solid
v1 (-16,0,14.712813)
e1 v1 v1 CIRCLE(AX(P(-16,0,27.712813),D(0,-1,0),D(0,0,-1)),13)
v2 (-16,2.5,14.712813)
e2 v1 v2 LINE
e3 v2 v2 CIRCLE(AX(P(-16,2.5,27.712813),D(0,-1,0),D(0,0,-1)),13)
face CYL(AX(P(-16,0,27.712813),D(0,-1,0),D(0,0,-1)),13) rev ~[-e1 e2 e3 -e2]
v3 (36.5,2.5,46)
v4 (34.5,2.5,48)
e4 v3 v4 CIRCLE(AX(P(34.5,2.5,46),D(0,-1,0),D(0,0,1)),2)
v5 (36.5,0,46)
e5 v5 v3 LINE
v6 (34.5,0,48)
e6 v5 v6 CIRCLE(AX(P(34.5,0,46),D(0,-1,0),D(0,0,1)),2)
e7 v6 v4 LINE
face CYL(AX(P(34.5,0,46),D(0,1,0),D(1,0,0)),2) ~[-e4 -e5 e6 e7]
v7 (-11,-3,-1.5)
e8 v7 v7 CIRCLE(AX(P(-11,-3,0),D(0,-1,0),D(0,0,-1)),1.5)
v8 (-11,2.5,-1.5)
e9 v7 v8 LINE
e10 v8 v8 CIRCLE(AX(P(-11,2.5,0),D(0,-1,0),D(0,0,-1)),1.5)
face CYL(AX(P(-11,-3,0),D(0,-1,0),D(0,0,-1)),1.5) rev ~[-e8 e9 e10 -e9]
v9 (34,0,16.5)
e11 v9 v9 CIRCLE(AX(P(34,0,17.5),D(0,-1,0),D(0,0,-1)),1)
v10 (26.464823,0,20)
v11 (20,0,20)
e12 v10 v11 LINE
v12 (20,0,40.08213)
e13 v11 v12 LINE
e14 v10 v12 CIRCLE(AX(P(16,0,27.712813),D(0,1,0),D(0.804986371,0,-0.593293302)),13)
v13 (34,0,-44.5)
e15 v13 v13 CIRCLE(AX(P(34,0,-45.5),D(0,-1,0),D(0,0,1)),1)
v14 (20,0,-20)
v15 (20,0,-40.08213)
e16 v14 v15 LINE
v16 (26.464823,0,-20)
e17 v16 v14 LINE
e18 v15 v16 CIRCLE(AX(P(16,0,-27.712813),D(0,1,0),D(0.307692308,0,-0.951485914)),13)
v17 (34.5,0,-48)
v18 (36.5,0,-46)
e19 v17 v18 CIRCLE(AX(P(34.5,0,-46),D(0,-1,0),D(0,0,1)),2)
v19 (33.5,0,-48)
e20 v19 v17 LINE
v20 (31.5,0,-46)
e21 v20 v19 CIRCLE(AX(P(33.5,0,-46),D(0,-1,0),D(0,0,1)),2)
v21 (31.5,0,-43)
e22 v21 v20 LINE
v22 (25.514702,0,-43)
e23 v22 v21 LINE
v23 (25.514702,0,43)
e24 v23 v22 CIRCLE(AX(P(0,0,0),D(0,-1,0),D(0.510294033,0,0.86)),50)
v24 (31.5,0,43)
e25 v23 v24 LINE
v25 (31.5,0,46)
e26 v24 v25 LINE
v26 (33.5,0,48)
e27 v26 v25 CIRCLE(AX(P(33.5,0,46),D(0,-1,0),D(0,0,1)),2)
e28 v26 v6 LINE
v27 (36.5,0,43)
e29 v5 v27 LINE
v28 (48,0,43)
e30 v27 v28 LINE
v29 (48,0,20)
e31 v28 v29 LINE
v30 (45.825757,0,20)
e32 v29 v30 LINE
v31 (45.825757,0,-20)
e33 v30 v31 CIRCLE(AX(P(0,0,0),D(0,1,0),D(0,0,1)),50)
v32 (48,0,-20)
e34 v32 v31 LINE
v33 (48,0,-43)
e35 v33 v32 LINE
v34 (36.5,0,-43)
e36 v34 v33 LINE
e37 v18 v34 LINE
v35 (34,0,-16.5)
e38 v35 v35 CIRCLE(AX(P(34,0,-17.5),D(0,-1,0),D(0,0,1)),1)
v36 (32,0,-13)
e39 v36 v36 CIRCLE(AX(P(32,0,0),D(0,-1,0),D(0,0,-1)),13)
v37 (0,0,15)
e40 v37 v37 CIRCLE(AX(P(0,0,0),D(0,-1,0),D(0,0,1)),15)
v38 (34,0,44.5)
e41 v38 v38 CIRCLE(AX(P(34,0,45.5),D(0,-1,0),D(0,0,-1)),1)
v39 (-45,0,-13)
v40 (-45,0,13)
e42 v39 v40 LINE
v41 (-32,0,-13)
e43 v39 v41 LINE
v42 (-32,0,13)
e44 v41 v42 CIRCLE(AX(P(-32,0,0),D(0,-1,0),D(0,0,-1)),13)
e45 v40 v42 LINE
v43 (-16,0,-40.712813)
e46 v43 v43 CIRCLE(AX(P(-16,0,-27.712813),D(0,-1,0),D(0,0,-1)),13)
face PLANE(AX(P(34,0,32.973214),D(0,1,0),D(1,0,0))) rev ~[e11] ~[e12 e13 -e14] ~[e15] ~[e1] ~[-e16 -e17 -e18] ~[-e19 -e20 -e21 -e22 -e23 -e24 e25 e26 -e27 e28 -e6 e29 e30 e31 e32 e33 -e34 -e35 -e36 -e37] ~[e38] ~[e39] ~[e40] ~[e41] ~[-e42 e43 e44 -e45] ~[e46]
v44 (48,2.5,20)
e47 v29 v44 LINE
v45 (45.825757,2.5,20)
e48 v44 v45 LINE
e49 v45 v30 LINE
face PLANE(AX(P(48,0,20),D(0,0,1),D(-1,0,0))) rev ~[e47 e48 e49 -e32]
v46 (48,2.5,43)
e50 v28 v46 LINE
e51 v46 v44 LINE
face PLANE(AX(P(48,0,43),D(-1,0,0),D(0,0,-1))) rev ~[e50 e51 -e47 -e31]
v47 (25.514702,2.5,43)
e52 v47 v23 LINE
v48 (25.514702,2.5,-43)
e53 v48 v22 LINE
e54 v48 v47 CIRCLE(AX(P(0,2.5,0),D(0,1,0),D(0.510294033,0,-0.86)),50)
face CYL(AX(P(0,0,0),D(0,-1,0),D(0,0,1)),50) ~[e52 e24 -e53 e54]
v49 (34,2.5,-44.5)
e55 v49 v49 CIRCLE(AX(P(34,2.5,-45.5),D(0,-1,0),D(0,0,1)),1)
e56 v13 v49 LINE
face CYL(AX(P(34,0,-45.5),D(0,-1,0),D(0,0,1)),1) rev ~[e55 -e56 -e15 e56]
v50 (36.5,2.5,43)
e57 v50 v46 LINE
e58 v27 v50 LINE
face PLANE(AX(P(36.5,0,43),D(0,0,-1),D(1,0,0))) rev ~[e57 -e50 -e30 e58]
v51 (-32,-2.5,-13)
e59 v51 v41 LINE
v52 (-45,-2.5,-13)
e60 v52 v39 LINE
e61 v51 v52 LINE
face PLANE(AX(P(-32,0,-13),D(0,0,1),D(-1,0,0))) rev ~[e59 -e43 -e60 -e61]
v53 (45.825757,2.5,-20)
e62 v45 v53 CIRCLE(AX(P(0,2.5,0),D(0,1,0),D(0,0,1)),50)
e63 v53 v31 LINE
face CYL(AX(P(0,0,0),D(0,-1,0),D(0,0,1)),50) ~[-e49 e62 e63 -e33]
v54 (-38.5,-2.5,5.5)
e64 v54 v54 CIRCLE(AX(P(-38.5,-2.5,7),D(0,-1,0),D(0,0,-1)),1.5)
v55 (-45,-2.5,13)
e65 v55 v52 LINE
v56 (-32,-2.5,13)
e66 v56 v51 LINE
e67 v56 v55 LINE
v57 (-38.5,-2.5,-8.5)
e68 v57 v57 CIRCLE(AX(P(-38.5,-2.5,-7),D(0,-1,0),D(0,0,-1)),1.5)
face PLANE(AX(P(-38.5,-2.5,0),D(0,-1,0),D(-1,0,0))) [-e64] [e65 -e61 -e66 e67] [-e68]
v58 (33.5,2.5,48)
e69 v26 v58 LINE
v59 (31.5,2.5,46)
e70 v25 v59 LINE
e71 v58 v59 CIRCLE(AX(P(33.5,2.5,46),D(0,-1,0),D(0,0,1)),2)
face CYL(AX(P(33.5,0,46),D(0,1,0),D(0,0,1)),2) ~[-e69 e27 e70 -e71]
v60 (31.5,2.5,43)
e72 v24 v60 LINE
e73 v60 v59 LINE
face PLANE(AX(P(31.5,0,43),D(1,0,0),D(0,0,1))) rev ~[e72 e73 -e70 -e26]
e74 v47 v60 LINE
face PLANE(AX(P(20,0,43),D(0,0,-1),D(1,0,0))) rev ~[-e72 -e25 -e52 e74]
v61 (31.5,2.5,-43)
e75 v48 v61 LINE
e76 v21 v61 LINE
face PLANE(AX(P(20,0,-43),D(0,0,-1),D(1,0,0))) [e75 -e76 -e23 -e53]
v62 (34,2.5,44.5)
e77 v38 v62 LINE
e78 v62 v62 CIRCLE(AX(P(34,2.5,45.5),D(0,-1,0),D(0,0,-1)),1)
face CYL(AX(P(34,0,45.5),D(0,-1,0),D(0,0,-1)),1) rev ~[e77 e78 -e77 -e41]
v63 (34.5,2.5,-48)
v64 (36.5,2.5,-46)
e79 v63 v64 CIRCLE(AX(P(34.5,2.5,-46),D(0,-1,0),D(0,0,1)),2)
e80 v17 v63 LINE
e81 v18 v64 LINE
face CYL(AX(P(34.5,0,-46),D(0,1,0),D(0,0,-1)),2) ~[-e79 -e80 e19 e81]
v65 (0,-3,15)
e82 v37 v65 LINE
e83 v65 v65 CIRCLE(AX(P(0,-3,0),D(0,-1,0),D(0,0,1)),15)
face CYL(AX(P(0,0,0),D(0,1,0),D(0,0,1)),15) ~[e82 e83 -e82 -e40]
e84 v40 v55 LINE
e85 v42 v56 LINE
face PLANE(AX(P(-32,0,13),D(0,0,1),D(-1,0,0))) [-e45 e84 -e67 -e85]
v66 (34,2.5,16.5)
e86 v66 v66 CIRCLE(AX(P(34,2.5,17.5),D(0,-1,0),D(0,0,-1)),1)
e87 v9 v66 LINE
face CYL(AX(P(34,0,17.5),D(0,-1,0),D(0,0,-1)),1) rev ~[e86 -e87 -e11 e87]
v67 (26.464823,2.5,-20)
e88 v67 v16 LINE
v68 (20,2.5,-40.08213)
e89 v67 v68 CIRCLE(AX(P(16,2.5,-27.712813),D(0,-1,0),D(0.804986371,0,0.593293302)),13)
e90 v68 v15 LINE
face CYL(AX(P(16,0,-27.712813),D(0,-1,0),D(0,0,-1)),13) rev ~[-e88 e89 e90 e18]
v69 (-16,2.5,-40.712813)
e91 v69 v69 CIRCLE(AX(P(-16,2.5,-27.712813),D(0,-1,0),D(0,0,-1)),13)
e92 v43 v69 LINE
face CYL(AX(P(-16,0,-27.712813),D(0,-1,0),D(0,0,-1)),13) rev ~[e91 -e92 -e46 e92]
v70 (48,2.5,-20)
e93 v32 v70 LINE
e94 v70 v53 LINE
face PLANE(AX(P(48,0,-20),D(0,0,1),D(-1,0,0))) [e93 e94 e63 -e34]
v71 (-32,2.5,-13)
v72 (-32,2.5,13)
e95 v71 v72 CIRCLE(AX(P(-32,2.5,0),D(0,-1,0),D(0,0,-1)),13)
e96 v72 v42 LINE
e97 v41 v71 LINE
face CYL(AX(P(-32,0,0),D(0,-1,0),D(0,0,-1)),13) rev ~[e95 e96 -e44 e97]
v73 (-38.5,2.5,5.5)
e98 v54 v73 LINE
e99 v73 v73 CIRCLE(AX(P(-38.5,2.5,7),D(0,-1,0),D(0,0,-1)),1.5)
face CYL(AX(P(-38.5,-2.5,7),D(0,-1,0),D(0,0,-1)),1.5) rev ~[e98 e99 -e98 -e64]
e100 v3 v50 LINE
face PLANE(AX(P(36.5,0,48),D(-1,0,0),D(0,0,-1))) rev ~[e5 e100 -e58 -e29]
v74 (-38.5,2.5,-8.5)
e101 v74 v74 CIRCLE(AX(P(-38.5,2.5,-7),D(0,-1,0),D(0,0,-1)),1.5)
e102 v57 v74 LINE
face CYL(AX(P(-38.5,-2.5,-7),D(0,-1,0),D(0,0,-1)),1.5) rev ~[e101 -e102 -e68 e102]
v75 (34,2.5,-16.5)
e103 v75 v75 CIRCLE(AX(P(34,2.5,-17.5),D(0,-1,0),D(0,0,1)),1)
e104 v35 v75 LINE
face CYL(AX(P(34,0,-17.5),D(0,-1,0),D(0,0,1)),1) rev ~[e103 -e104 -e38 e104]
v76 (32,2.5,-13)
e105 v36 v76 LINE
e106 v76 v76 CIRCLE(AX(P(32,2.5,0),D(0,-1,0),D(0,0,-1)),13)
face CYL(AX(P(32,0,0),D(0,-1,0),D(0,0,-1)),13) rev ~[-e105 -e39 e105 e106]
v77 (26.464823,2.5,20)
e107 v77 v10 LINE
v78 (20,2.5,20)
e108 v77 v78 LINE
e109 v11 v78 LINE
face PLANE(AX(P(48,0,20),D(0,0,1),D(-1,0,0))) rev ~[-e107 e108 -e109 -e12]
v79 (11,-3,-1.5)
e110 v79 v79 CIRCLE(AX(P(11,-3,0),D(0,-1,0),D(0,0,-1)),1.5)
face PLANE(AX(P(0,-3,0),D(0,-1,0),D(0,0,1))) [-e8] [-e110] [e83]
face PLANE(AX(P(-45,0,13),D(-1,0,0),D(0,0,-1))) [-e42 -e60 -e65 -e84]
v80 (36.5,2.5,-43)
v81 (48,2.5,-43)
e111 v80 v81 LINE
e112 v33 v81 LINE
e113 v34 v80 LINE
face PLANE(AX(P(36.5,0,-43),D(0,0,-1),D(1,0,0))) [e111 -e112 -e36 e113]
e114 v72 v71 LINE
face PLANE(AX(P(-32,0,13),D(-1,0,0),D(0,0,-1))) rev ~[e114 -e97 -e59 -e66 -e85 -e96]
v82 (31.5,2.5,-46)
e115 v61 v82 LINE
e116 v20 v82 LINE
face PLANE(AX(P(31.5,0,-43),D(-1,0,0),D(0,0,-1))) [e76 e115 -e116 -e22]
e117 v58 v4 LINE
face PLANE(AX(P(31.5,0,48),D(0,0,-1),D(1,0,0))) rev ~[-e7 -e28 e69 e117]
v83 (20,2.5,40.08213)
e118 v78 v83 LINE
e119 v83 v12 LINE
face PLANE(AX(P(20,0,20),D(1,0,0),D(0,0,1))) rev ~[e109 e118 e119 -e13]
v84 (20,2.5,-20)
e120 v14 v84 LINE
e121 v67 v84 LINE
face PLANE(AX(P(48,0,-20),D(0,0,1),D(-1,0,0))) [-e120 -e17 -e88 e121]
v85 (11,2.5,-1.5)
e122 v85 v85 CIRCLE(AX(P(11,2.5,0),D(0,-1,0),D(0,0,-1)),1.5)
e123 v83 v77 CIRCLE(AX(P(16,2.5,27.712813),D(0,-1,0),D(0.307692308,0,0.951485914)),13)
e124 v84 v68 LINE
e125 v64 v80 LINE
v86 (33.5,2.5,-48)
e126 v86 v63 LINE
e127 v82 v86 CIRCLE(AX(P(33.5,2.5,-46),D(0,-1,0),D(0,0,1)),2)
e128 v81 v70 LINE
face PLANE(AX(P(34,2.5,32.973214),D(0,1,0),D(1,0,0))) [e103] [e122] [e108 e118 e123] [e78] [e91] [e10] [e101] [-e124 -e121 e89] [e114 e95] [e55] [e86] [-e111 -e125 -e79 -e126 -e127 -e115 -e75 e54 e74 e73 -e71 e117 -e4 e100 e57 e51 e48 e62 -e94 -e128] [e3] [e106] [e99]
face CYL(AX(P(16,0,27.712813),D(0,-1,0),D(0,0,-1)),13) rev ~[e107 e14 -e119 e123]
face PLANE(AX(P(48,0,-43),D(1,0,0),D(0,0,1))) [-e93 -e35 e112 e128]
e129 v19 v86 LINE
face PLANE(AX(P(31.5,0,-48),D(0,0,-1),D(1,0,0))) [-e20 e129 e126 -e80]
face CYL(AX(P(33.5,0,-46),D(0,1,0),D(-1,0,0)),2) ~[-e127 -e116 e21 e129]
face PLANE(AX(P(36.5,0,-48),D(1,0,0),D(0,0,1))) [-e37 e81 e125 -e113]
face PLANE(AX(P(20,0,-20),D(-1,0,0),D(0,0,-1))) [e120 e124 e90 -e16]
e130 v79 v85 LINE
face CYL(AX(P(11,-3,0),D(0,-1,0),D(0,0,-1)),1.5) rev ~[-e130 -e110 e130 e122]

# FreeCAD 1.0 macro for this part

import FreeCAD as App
import Part
import Sketcher
Q = App.Units.Quantity


def edges_at(feature, points):
    """Names of the edges that pass closest to the given points."""
    edges = feature.Shape.Edges
    near = lambda p: min(range(len(edges)), key=lambda i: edges[i].distToShape(Part.Vertex(*p))[0])
    return sorted({f"Edge{near(p) + 1}" for p in points})


def add_polygon(sketch, points):
    """Adds a closed chain of lines whose ends are joined by coincident constraints."""
    first, n = sketch.GeometryCount, len(points)
    for a, b in zip(points, points[1:] + points[:1]):
        sketch.addGeometry(Part.LineSegment(App.Vector(*a, 0), App.Vector(*b, 0)), False)
    for i in range(n):
        sketch.addConstraint(Sketcher.Constraint("Coincident", first + i, 2, first + (i + 1) % n, 1))

doc = App.newDocument("Part")
body = doc.addObject("PartDesign::Body", "Body")

sketch1 = doc.addObject("Sketcher::SketchObject", "Sketch")
body.addObject(sketch1)
sketch1.AttachmentSupport = (doc.XZ_Plane, [""])
sketch1.MapMode = "FlatFace"
sketch1.addGeometry(Part.Circle(App.Vector(0, 0, 0), App.Vector(0, 0, 1), 50), False)
sketch1.addConstraint([
    Sketcher.Constraint("Coincident", 0, 3, -1, 1),
    Sketcher.Constraint("Diameter", 0, Q("100 mm")),
])
pad1 = doc.addObject("PartDesign::Pad", "Pad")
body.addObject(pad1)
pad1.Profile = sketch1
pad1.Length = 2.5
pad1.Reversed = True

sketch2 = doc.addObject("Sketcher::SketchObject", "Sketch001")
body.addObject(sketch2)
sketch2.AttachmentSupport = (doc.XZ_Plane, [""])
sketch2.MapMode = "FlatFace"
sketch2.addGeometry(Part.Circle(App.Vector(0, 0, 0), App.Vector(0, 0, 1), 15), False)
sketch2.addConstraint([
    Sketcher.Constraint("Coincident", 0, 3, -1, 1),
    Sketcher.Constraint("Diameter", 0, Q("30 mm")),
])
pad2 = doc.addObject("PartDesign::Pad", "Pad001")
body.addObject(pad2)
pad2.Profile = sketch2
pad2.Length = 3

sketch3 = doc.addObject("Sketcher::SketchObject", "Sketch002")
body.addObject(sketch3)
sketch3.AttachmentSupport = (doc.XZ_Plane, [""])
sketch3.MapMode = "FlatFace"
sketch3.AttachmentOffset = App.Placement(App.Vector(0, 0, 3), App.Rotation())
sketch3.addGeometry([
    Part.Circle(App.Vector(-11, 0, 0), App.Vector(0, 0, 1), 1.5),
    Part.Circle(App.Vector(11, 0, 0), App.Vector(0, 0, 1), 1.5),
], False)
sketch3.addConstraint([
    Sketcher.Constraint("Equal", 0, 1),
    Sketcher.Constraint("Symmetric", 0, 3, 1, 3, -1, 1),
    Sketcher.Constraint("PointOnObject", 0, 3, -1),
    Sketcher.Constraint("Diameter", 0, Q("3 mm")),
    Sketcher.Constraint("DistanceX", 0, 3, -1, 1, Q("11 mm")),
])
pocket1 = doc.addObject("PartDesign::Pocket", "Pocket")
body.addObject(pocket1)
pocket1.Profile = sketch3
pocket1.Type = "ThroughAll"

sketch4 = doc.addObject("Sketcher::SketchObject", "Sketch003")
body.addObject(sketch4)
sketch4.AttachmentSupport = (doc.XZ_Plane, [""])
sketch4.MapMode = "FlatFace"
sketch4.addGeometry([
    Part.Circle(App.Vector(-32, 0, 0), App.Vector(0, 0, 1), 13),
    Part.Circle(App.Vector(-16, 28, 0), App.Vector(0, 0, 1), 13),
    Part.Circle(App.Vector(16, 28, 0), App.Vector(0, 0, 1), 13),
    Part.Circle(App.Vector(32, 0, 0), App.Vector(0, 0, 1), 13),
    Part.Circle(App.Vector(16, -28, 0), App.Vector(0, 0, 1), 13),
    Part.Circle(App.Vector(-16, -28, 0), App.Vector(0, 0, 1), 13),
], False)
sketch4.addConstraint([
    Sketcher.Constraint("Equal", 0, 1),
    Sketcher.Constraint("Equal", 1, 2),
    Sketcher.Constraint("Equal", 2, 3),
    Sketcher.Constraint("Equal", 3, 4),
    Sketcher.Constraint("Equal", 4, 5),
    Sketcher.Constraint("Symmetric", 0, 3, 3, 3, -1, 1),
    Sketcher.Constraint("Symmetric", 1, 3, 4, 3, -1, 1),
    Sketcher.Constraint("Symmetric", 2, 3, 5, 3, -1, 1),
    Sketcher.Constraint("Symmetric", 1, 3, 2, 3, -2),
    Sketcher.Constraint("PointOnObject", 0, 3, -1),
    Sketcher.Constraint("Diameter", 0, Q("26 mm")),
    Sketcher.Constraint("DistanceX", 0, 3, -1, 1, Q("32 mm")),
    Sketcher.Constraint("DistanceX", 1, 3, -1, 1, Q("16 mm")),
    Sketcher.Constraint("DistanceY", -1, 1, 1, 3, Q("27.712813 mm")),
])
pocket2 = doc.addObject("PartDesign::Pocket", "Pocket001")
body.addObject(pocket2)
pocket2.Profile = sketch4
pocket2.Type = "ThroughAll"

sketch5 = doc.addObject("Sketcher::SketchObject", "Sketch004")
body.addObject(sketch5)
sketch5.AttachmentSupport = (doc.XZ_Plane, [""])
sketch5.MapMode = "FlatFace"
add_polygon(sketch5, [(-32, -13), (-32, 13), (-45, 13), (-45, -13)])
sketch5.addConstraint([
    Sketcher.Constraint("Vertical", 0),
    Sketcher.Constraint("Horizontal", 1),
    Sketcher.Constraint("Vertical", 2),
    Sketcher.Constraint("Horizontal", 3),
    Sketcher.Constraint("DistanceX", 1, 2, 1, 1, Q("13 mm")),
    Sketcher.Constraint("DistanceY", 0, 1, 0, 2, Q("26 mm")),
    Sketcher.Constraint("DistanceX", 0, 2, -1, 1, Q("32 mm")),
    Sketcher.Constraint("DistanceY", -1, 1, 0, 2, Q("13 mm")),
])
pad3 = doc.addObject("PartDesign::Pad", "Pad002")
body.addObject(pad3)
pad3.Profile = sketch5
pad3.Length = 5
pad3.Midplane = True

sketch6 = doc.addObject("Sketcher::SketchObject", "Sketch005")
body.addObject(sketch6)
sketch6.AttachmentSupport = (doc.XZ_Plane, [""])
sketch6.MapMode = "FlatFace"
sketch6.AttachmentOffset = App.Placement(App.Vector(0, 0, 2.5), App.Rotation())
sketch6.addGeometry([
    Part.Circle(App.Vector(-38.5, 7, 0), App.Vector(0, 0, 1), 1.5),
    Part.Circle(App.Vector(-38.5, -7, 0), App.Vector(0, 0, 1), 1.5),
], False)
sketch6.addConstraint([
    Sketcher.Constraint("Equal", 0, 1),
    Sketcher.Constraint("Symmetric", 0, 3, 1, 3, -1),
    Sketcher.Constraint("Diameter", 0, Q("3 mm")),
    Sketcher.Constraint("DistanceY", -1, 1, 0, 3, Q("7 mm")),
    Sketcher.Constraint("DistanceX", 0, 3, -1, 1, Q("38.5 mm")),
])
pocket3 = doc.addObject("PartDesign::Pocket", "Pocket002")
body.addObject(pocket3)
pocket3.Profile = sketch6
pocket3.Type = "ThroughAll"

sketch7 = doc.addObject("Sketcher::SketchObject", "Sketch006")
body.addObject(sketch7)
sketch7.AttachmentSupport = (doc.XZ_Plane, [""])
sketch7.MapMode = "FlatFace"
add_polygon(sketch7, [(48, 43), (36, 43), (36, 48), (32, 48), (32, 43), (20, 43), (20, 20), (48, 20)])
add_polygon(sketch7, [(32, -43), (32, -48), (36, -48), (36, -43), (48, -43), (48, -20), (20, -20), (20, -43)])
sketch7.addConstraint([
    Sketcher.Constraint("Horizontal", 0),
    Sketcher.Constraint("Vertical", 1),
    Sketcher.Constraint("Horizontal", 2),
    Sketcher.Constraint("Vertical", 3),
    Sketcher.Constraint("Horizontal", 4),
    Sketcher.Constraint("Vertical", 5),
    Sketcher.Constraint("Horizontal", 6),
    Sketcher.Constraint("Vertical", 7),
    Sketcher.Constraint("Vertical", 8),
    Sketcher.Constraint("Horizontal", 9),
    Sketcher.Constraint("Vertical", 10),
    Sketcher.Constraint("Horizontal", 11),
    Sketcher.Constraint("Vertical", 12),
    Sketcher.Constraint("Horizontal", 13),
    Sketcher.Constraint("Vertical", 14),
    Sketcher.Constraint("Horizontal", 15),
    Sketcher.Constraint("Symmetric", 2, 2, 8, 2, -1),
    Sketcher.Constraint("Symmetric", 0, 2, 10, 2, -1),
    Sketcher.Constraint("Symmetric", 6, 2, 12, 2, -1),
    Sketcher.Constraint("Symmetric", 4, 2, 14, 2, -1),
    Sketcher.Constraint("Horizontal", 0, 2, 3, 2),
    Sketcher.Constraint("Equal", 0, 4),
    Sketcher.Constraint("Equal", 9, 1),
    Sketcher.Constraint("DistanceX", 2, 2, 2, 1, Q("5 mm")),
    Sketcher.Constraint("DistanceX", 6, 1, 6, 2, Q("28 mm")),
    Sketcher.Constraint("DistanceY", 5, 2, 5, 1, Q("23 mm")),
    Sketcher.Constraint("DistanceY", -1, 1, 0, 2, Q("43 mm")),
    Sketcher.Constraint("DistanceX", -1, 1, 4, 2, Q("20 mm")),
])
pad4 = doc.addObject("PartDesign::Pad", "Pad003")
body.addObject(pad4)
pad4.Profile = sketch7
pad4.Length = 2.5
pad4.Reversed = True

sketch8 = doc.addObject("Sketcher::SketchObject", "Sketch007")
body.addObject(sketch8)
sketch8.AttachmentSupport = (doc.XZ_Plane, [""])
sketch8.MapMode = "FlatFace"
sketch8.addGeometry([
    Part.Circle(App.Vector(34, 45.5, 0), App.Vector(0, 0, 1), 1),
    Part.Circle(App.Vector(34, 17.5, 0), App.Vector(0, 0, 1), 1),
    Part.Circle(App.Vector(34, -17.5, 0), App.Vector(0, 0, 1), 1),
    Part.Circle(App.Vector(34, -45.5, 0), App.Vector(0, 0, 1), 1),
], False)
sketch8.addConstraint([
    Sketcher.Constraint("Equal", 0, 1),
    Sketcher.Constraint("Equal", 1, 2),
    Sketcher.Constraint("Equal", 2, 3),
    Sketcher.Constraint("Symmetric", 1, 3, 2, 3, -1),
    Sketcher.Constraint("Symmetric", 0, 3, 3, 3, -1),
    Sketcher.Constraint("Vertical", 0, 3, 1, 3),
    Sketcher.Constraint("Diameter", 0, Q("2 mm")),
    Sketcher.Constraint("DistanceX", -1, 1, 0, 3, Q("34 mm")),
    Sketcher.Constraint("DistanceY", 1, 3, 0, 3, Q("28 mm")),
    Sketcher.Constraint("DistanceY", 2, 3, 1, 3, Q("35 mm")),
])
pocket4 = doc.addObject("PartDesign::Pocket", "Pocket003")
body.addObject(pocket4)
pocket4.Profile = sketch8
pocket4.Type = "ThroughAll"
doc.recompute()

fillet = doc.addObject("PartDesign::Fillet", "Fillet")
body.addObject(fillet)
fillet.Base = (pocket4, edges_at(pocket4, [
    (36.5, 1.25, -48),
    (31.5, 1.25, -48),
    (31.5, 1.25, 48),
    (36.5, 1.25, 48),
]))
fillet.Radius = 2

doc.recompute()
